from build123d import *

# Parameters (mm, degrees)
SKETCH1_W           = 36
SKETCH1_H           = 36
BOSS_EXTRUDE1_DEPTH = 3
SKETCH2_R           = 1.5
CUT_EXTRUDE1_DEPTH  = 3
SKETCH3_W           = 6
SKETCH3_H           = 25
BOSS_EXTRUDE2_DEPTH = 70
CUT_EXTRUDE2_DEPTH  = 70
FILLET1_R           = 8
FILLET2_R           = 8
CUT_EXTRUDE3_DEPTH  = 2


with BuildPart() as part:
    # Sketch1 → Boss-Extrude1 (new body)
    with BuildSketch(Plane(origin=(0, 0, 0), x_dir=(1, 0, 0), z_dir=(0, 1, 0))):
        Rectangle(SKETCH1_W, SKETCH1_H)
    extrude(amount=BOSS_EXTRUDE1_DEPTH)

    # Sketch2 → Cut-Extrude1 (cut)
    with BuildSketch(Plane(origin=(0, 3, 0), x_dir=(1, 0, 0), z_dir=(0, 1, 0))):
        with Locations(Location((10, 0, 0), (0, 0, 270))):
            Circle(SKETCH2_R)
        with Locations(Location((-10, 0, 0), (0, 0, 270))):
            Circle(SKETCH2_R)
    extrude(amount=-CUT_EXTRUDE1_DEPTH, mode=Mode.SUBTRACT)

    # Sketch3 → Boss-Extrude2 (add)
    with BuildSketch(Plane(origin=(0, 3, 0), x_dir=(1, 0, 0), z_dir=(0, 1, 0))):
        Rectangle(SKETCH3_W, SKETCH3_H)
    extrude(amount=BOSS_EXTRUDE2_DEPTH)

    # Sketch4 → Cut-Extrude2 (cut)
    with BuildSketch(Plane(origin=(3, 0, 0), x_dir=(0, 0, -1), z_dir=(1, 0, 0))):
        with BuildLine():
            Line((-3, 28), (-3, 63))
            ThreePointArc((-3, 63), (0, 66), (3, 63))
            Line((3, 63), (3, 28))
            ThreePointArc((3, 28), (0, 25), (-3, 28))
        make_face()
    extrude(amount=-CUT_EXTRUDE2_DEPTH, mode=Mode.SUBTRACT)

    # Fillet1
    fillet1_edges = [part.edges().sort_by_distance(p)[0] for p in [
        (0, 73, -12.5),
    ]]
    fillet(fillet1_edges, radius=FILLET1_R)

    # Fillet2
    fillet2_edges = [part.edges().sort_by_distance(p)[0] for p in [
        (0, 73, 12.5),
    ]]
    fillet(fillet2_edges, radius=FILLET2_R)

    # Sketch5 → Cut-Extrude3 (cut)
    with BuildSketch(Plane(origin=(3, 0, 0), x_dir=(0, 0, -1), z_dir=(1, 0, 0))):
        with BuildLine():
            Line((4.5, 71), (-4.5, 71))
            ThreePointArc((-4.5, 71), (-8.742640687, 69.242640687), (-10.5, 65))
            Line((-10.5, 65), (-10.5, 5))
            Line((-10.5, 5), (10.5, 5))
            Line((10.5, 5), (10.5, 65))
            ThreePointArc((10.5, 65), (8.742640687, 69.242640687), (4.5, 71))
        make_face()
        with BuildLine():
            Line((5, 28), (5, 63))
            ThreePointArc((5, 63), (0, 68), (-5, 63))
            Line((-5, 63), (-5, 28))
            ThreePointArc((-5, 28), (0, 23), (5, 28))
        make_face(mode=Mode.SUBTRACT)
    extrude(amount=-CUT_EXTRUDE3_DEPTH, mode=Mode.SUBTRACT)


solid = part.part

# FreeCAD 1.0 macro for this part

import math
import FreeCAD as App
import Part
import Sketcher
Q = App.Units.Quantity


def edges_at(feature, points):
    """Names of the edges that pass closest to the given points."""
    edges = feature.Shape.Edges
    near = lambda p: min(range(len(edges)), key=lambda i: edges[i].distToShape(Part.Vertex(*p))[0])
    return sorted({f"Edge{near(p) + 1}" for p in points})

doc = App.newDocument("Part")
body = doc.addObject("PartDesign::Body", "Body")

# Sketch on XZ plane
sketch1 = doc.addObject("Sketcher::SketchObject", "Sketch")
body.addObject(sketch1)
sketch1.AttachmentSupport = (doc.XZ_Plane, [""])
sketch1.MapMode = "FlatFace"
sketch1.addGeometry([
    Part.LineSegment(App.Vector(-18, -18, 0), App.Vector(-18, 18, 0)),
    Part.LineSegment(App.Vector(-18, 18, 0), App.Vector(18, 18, 0)),
    Part.LineSegment(App.Vector(18, 18, 0), App.Vector(18, -18, 0)),
    Part.LineSegment(App.Vector(18, -18, 0), App.Vector(-18, -18, 0)),
], False)
sketch1.addConstraint([
    Sketcher.Constraint("Coincident", 0, 2, 1, 1),
    Sketcher.Constraint("Coincident", 1, 2, 2, 1),
    Sketcher.Constraint("Coincident", 2, 2, 3, 1),
    Sketcher.Constraint("Coincident", 3, 2, 0, 1),
    Sketcher.Constraint("Vertical", 0),
    Sketcher.Constraint("Horizontal", 1),
    Sketcher.Constraint("Vertical", 2),
    Sketcher.Constraint("Horizontal", 3),
    Sketcher.Constraint("Symmetric", 0, 2, 2, 2, -1, 1),
    Sketcher.Constraint("Equal", 3, 0),
    Sketcher.Constraint("DistanceX", 1, 1, 1, 2, Q("36 mm")),
])
pad1 = doc.addObject("PartDesign::Pad", "Pad")
body.addObject(pad1)
pad1.Profile = sketch1
pad1.Length = 3
pad1.Reversed = True

# Sketch on XZ plane
sketch2 = doc.addObject("Sketcher::SketchObject", "Sketch001")
body.addObject(sketch2)
sketch2.AttachmentSupport = (doc.XZ_Plane, [""])
sketch2.MapMode = "FlatFace"
sketch2.AttachmentOffset = App.Placement(App.Vector(0, 0, -3), App.Rotation())
sketch2.addGeometry([
    Part.Circle(App.Vector(10, 0, 0), App.Vector(0, 0, 1), 1.5),
    Part.Circle(App.Vector(-10, 0, 0), App.Vector(0, 0, 1), 1.5),
], False)
sketch2.addConstraint([
    Sketcher.Constraint("Equal", 0, 1),
    Sketcher.Constraint("Symmetric", 0, 3, 1, 3, -1, 1),
    Sketcher.Constraint("PointOnObject", 0, 3, -1),
    Sketcher.Constraint("Diameter", 0, Q("3 mm")),
    Sketcher.Constraint("DistanceX", -1, 1, 0, 3, Q("10 mm")),
])
pocket1 = doc.addObject("PartDesign::Pocket", "Pocket")
body.addObject(pocket1)
pocket1.Profile = sketch2
pocket1.Length = 3
pocket1.Reversed = True

# Sketch on XZ plane
sketch3 = doc.addObject("Sketcher::SketchObject", "Sketch002")
body.addObject(sketch3)
sketch3.AttachmentSupport = (doc.XZ_Plane, [""])
sketch3.MapMode = "FlatFace"
sketch3.AttachmentOffset = App.Placement(App.Vector(0, 0, -3), App.Rotation())
sketch3.addGeometry([
    Part.LineSegment(App.Vector(-3, -12, 0), App.Vector(-3, 12, 0)),
    Part.LineSegment(App.Vector(-3, 12, 0), App.Vector(3, 12, 0)),
    Part.LineSegment(App.Vector(3, 12, 0), App.Vector(3, -12, 0)),
    Part.LineSegment(App.Vector(3, -12, 0), App.Vector(-3, -12, 0)),
], False)
sketch3.addConstraint([
    Sketcher.Constraint("Coincident", 0, 2, 1, 1),
    Sketcher.Constraint("Coincident", 1, 2, 2, 1),
    Sketcher.Constraint("Coincident", 2, 2, 3, 1),
    Sketcher.Constraint("Coincident", 3, 2, 0, 1),
    Sketcher.Constraint("Vertical", 0),
    Sketcher.Constraint("Horizontal", 1),
    Sketcher.Constraint("Vertical", 2),
    Sketcher.Constraint("Horizontal", 3),
    Sketcher.Constraint("Symmetric", 0, 2, 2, 2, -1, 1),
    Sketcher.Constraint("DistanceX", 1, 1, 1, 2, Q("6 mm")),
    Sketcher.Constraint("DistanceY", 0, 1, 0, 2, Q("25 mm")),
])
pad2 = doc.addObject("PartDesign::Pad", "Pad001")
body.addObject(pad2)
pad2.Profile = sketch3
pad2.Length = 70
pad2.Reversed = True

# Sketch on YZ plane
sketch4 = doc.addObject("Sketcher::SketchObject", "Sketch003")
body.addObject(sketch4)
sketch4.AttachmentSupport = (doc.YZ_Plane, [""])
sketch4.MapMode = "FlatFace"
sketch4.AttachmentOffset = App.Placement(App.Vector(0, 0, 3), App.Rotation())
sketch4.addGeometry([
    Part.LineSegment(App.Vector(63, 3, 0), App.Vector(28, 3, 0)),
    Part.ArcOfCircle(Part.Circle(App.Vector(28, 0, 0), App.Vector(0, 0, 1), 3), math.radians(90), math.radians(270)),
    Part.LineSegment(App.Vector(28, -3, 0), App.Vector(63, -3, 0)),
    Part.ArcOfCircle(Part.Circle(App.Vector(63, 0, 0), App.Vector(0, 0, 1), 3), math.radians(-90), math.radians(90)),
], False)
sketch4.addConstraint([
    Sketcher.Constraint("Tangent", 0, 2, 1, 1),
    Sketcher.Constraint("Tangent", 1, 2, 2, 1),
    Sketcher.Constraint("Tangent", 2, 2, 3, 1),
    Sketcher.Constraint("Tangent", 3, 2, 0, 1),
    Sketcher.Constraint("Horizontal", 0),
    Sketcher.Constraint("Horizontal", 2),
    Sketcher.Constraint("PointOnObject", 1, 3, -1),
    Sketcher.Constraint("Radius", 1, Q("3 mm")),
    Sketcher.Constraint("DistanceX", 0, 2, 0, 1, Q("35 mm")),
    Sketcher.Constraint("DistanceX", -1, 1, 1, 3, Q("28 mm")),
])
pocket2 = doc.addObject("PartDesign::Pocket", "Pocket001")
body.addObject(pocket2)
pocket2.Profile = sketch4
pocket2.Length = 70
doc.recompute()

fillet = doc.addObject("PartDesign::Fillet", "Fillet")
body.addObject(fillet)
fillet.Base = (pocket2, edges_at(pocket2, [(0, 73, -12.5)]))
fillet.Radius = 8
doc.recompute()

fillet2 = doc.addObject("PartDesign::Fillet", "Fillet001")
body.addObject(fillet2)
fillet2.Base = (fillet, edges_at(fillet, [(0, 73, 12.5)]))
fillet2.Radius = 8

# Sketch on YZ plane
sketch5 = doc.addObject("Sketcher::SketchObject", "Sketch004")
body.addObject(sketch5)
sketch5.AttachmentSupport = (doc.YZ_Plane, [""])
sketch5.MapMode = "FlatFace"
sketch5.AttachmentOffset = App.Placement(App.Vector(0, 0, 3), App.Rotation())
sketch5.addGeometry([
    Part.LineSegment(App.Vector(71, -4, 0), App.Vector(71, 4, 0)),  # 0
    Part.ArcOfCircle(Part.Circle(App.Vector(65, 4, 0), App.Vector(0, 0, 1), 6), math.radians(0), math.radians(90)),  # 1
    Part.LineSegment(App.Vector(65, 10, 0), App.Vector(5, 10, 0)),  # 2
    Part.LineSegment(App.Vector(5, 10, 0), App.Vector(5, -10, 0)),  # 3
    Part.LineSegment(App.Vector(5, -10, 0), App.Vector(65, -10, 0)),  # 4
    Part.ArcOfCircle(Part.Circle(App.Vector(65, -4, 0), App.Vector(0, 0, 1), 6), math.radians(-90), math.radians(0)),  # 5
    Part.LineSegment(App.Vector(63, -5, 0), App.Vector(28, -5, 0)),  # 6
    Part.ArcOfCircle(Part.Circle(App.Vector(28, 0, 0), App.Vector(0, 0, 1), 5), math.radians(90), math.radians(270)),  # 7
    Part.LineSegment(App.Vector(28, 5, 0), App.Vector(63, 5, 0)),  # 8
    Part.ArcOfCircle(Part.Circle(App.Vector(63, 0, 0), App.Vector(0, 0, 1), 5), math.radians(-90), math.radians(90)),  # 9
], False)
sketch5.addConstraint([
    Sketcher.Constraint("Tangent", 0, 2, 1, 1),
    Sketcher.Constraint("Tangent", 1, 2, 2, 1),
    Sketcher.Constraint("Coincident", 2, 2, 3, 1),
    Sketcher.Constraint("Coincident", 3, 2, 4, 1),
    Sketcher.Constraint("Tangent", 4, 2, 5, 1),
    Sketcher.Constraint("Tangent", 5, 2, 0, 1),
    Sketcher.Constraint("Tangent", 6, 2, 7, 2),
    Sketcher.Constraint("Tangent", 7, 1, 8, 1),
    Sketcher.Constraint("Tangent", 8, 2, 9, 2),
    Sketcher.Constraint("Tangent", 9, 1, 6, 1),
    Sketcher.Constraint("Vertical", 0),
    Sketcher.Constraint("Horizontal", 2),
    Sketcher.Constraint("Vertical", 3),
    Sketcher.Constraint("Horizontal", 4),
    Sketcher.Constraint("Horizontal", 6),
    Sketcher.Constraint("Horizontal", 8),
    Sketcher.Constraint("Equal", 1, 5),
    Sketcher.Constraint("PointOnObject", 7, 3, -1),
    Sketcher.Constraint("Radius", 1, Q("6 mm")),
    Sketcher.Constraint("Radius", 7, Q("5 mm")),
    Sketcher.Constraint("DistanceX", 2, 2, 2, 1, Q("60 mm")),
    Sketcher.Constraint("DistanceX", 6, 2, 6, 1, Q("35 mm")),
    Sketcher.Constraint("DistanceY", 0, 1, 0, 2, Q("9 mm")),
    Sketcher.Constraint("DistanceX", -1, 1, 1, 3, Q("65 mm")),
    Sketcher.Constraint("DistanceX", -1, 1, 7, 3, Q("28 mm")),
    Sketcher.Constraint("DistanceY", -1, 1, 1, 3, Q("4.5 mm")),
])
pocket3 = doc.addObject("PartDesign::Pocket", "Pocket002")
body.addObject(pocket3)
pocket3.Profile = sketch5
pocket3.Length = 2

doc.recompute()
